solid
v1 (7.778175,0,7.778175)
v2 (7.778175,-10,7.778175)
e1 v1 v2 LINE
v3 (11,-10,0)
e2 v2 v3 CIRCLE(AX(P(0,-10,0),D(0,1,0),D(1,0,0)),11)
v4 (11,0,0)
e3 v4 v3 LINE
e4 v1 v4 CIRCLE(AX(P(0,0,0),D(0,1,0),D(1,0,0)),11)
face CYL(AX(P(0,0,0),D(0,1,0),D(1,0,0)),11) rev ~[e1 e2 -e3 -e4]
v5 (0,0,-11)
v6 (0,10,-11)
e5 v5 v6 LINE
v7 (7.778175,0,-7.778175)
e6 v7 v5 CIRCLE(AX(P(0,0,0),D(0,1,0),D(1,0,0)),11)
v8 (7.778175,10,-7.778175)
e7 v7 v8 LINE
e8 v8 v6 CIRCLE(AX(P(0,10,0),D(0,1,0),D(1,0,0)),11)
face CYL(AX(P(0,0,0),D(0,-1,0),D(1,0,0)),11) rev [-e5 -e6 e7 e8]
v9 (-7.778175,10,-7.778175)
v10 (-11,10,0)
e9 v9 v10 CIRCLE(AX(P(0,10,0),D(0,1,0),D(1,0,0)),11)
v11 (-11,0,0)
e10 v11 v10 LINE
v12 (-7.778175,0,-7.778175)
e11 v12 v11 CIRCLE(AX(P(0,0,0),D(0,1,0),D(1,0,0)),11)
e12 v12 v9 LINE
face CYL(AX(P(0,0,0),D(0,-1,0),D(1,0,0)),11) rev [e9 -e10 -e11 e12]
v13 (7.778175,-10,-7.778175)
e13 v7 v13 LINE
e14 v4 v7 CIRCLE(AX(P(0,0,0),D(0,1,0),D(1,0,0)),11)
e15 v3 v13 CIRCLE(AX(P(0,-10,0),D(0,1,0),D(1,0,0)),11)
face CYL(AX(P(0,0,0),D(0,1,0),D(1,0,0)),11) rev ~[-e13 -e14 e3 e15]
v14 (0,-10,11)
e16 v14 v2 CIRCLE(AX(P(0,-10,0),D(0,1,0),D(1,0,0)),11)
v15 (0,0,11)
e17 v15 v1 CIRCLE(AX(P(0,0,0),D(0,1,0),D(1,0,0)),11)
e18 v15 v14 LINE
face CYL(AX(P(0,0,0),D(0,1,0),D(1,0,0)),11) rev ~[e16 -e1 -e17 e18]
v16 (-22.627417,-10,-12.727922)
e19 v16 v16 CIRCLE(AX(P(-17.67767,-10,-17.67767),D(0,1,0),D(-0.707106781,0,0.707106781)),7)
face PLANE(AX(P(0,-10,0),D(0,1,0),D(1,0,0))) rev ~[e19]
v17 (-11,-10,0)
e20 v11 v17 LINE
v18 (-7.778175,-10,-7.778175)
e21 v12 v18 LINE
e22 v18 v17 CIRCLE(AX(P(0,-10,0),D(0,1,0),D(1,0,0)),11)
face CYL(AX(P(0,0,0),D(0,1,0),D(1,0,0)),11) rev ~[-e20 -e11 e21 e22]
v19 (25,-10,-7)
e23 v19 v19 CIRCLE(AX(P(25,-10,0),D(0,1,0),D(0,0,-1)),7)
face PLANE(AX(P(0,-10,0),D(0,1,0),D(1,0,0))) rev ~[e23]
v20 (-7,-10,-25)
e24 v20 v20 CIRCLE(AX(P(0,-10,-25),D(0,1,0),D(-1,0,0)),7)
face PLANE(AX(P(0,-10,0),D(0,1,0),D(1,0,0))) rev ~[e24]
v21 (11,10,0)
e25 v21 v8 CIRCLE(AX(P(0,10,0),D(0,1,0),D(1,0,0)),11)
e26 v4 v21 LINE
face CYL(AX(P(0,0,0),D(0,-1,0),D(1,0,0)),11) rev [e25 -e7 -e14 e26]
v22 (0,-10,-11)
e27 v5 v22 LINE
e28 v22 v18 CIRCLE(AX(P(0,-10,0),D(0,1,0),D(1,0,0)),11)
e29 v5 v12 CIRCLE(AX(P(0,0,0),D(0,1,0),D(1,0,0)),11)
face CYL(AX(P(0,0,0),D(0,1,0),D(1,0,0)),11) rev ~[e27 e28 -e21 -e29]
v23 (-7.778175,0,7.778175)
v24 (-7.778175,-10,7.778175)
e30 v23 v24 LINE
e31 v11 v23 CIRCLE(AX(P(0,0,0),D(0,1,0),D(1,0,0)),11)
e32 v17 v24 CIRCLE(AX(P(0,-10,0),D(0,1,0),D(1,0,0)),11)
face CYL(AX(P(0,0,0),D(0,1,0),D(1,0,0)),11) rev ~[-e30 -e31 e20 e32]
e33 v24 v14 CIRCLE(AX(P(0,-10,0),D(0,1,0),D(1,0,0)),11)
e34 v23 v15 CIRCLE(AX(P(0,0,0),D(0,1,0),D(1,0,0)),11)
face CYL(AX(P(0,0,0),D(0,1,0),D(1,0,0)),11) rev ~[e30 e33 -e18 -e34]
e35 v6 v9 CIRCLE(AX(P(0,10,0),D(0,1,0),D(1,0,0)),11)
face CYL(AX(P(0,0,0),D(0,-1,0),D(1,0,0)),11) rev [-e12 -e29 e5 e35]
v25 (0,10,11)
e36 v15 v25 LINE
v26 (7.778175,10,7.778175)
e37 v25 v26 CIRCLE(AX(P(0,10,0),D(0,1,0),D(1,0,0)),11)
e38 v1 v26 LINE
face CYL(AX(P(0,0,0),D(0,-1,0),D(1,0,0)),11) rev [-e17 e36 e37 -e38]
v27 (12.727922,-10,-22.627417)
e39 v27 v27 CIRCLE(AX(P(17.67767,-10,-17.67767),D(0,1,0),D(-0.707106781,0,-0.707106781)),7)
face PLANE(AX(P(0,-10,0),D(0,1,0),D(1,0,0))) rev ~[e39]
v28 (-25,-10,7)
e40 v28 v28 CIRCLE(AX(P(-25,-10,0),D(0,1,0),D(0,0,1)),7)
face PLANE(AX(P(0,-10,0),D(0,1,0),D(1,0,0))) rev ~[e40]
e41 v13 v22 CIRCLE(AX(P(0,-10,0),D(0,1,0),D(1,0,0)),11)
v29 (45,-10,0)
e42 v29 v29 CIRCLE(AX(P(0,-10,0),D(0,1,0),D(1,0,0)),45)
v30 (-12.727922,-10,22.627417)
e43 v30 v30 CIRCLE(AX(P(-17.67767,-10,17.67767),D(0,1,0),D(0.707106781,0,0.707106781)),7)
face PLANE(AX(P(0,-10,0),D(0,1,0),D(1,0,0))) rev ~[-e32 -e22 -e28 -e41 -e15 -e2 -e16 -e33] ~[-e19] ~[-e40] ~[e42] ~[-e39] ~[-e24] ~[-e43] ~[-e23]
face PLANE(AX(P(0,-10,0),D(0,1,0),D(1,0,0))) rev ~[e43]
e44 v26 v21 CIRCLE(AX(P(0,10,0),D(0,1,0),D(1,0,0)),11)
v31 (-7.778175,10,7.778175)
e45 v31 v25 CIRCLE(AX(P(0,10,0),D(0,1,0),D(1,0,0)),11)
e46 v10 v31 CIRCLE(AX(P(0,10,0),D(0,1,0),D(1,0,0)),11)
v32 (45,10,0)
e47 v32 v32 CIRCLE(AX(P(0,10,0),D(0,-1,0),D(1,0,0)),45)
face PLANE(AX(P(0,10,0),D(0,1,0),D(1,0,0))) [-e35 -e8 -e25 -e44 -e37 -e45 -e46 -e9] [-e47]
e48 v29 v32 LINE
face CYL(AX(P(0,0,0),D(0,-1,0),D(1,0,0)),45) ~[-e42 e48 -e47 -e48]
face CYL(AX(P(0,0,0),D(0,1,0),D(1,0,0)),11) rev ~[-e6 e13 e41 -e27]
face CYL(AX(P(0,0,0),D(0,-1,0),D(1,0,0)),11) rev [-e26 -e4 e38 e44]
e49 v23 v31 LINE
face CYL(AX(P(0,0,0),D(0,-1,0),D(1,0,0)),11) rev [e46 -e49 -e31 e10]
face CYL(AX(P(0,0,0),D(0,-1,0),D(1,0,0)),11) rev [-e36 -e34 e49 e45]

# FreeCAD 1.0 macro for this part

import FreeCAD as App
import Part
import Sketcher
from FreeCAD import Vector
Q = App.Units.Quantity

doc = App.newDocument("Part")
body = doc.addObject("PartDesign::Body", "Body")

# Sketch on XZ plane
sketch1 = body.newObject("Sketcher::SketchObject", "Sketch")
sketch1.AttachmentSupport = (doc.getObject("XZ_Plane"), [""])
sketch1.MapMode = "FlatFace"
sketch1.addGeometry([
    Part.Circle(Vector(0, 0, 0), Vector(0, 0, 1), 45),
    Part.Circle(Vector(0, 25, 0), Vector(0, 0, 1), 7),
    Part.Circle(Vector(0, 0, 0), Vector(0, 0, 1), 11),
], False)
sketch1.addConstraint([
    Sketcher.Constraint("Coincident", 0, 3, -1, 1),
    Sketcher.Constraint("Coincident", 2, 3, -1, 1),
    Sketcher.Constraint("PointOnObject", 1, 3, -2),
    Sketcher.Constraint("Diameter", 1, Q("14 mm")),
    Sketcher.Constraint("Diameter", 2, Q("22 mm")),
    Sketcher.Constraint("Diameter", 0, Q("90 mm")),
    Sketcher.Constraint("DistanceY", -1, 1, 1, 3, Q("25 mm")),
])
pad1 = body.newObject("PartDesign::Pad", "Pad")
pad1.Profile = sketch1
pad1.Length = 20
pad1.Midplane = True
doc.recompute()

polarpattern = body.newObject("PartDesign::PolarPattern", "PolarPattern")
polarpattern.Originals = [pad1]
polarpattern.Axis = (doc.getObject("Y_Axis"), [""])
polarpattern.Angle = 360
polarpattern.Occurrences = 8
body.Tip = polarpattern

doc.recompute()
